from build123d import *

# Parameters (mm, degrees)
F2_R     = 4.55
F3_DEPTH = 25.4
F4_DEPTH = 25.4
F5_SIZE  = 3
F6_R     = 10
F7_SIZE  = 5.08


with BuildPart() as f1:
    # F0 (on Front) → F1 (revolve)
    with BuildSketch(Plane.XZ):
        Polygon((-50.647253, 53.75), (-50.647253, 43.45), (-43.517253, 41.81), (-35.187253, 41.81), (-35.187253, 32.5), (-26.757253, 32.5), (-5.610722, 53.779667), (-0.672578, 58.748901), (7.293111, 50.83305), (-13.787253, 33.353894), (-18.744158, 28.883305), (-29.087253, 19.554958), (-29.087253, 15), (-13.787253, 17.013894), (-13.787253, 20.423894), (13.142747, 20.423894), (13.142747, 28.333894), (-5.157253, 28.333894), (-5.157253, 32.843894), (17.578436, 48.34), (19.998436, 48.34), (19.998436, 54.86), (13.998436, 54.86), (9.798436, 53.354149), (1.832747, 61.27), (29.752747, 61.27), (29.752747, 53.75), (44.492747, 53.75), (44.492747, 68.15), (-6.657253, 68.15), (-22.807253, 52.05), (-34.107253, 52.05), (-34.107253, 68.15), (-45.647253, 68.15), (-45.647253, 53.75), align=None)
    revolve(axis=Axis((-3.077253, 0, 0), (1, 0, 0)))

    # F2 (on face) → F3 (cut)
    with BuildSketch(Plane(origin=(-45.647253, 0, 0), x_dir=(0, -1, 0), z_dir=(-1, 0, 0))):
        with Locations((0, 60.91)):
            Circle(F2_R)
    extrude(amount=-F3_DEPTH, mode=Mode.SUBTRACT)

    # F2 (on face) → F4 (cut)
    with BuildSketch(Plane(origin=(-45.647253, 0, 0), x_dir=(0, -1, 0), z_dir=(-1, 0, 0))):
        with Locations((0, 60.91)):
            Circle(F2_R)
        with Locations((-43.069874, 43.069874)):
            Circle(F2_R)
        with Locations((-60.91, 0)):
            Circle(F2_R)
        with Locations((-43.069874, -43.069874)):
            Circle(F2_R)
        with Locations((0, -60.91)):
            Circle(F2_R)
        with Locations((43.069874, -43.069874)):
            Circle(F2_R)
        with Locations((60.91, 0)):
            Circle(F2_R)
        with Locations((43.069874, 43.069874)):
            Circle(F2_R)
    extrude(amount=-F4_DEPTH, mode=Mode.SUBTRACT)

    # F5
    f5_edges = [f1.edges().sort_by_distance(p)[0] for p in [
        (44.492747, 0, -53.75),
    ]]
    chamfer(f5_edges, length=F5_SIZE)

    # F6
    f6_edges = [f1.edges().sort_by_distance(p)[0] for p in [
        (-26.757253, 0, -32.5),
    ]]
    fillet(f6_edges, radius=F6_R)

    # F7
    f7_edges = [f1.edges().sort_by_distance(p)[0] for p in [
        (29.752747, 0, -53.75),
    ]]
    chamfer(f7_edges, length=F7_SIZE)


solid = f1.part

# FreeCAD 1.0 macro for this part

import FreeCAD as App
import Part
import Sketcher
Q = App.Units.Quantity


def edges_at(feature, points):
    """Names of the edges that pass closest to the given points."""
    edges = feature.Shape.Edges
    near = lambda p: min(range(len(edges)), key=lambda i: edges[i].distToShape(Part.Vertex(*p))[0])
    return sorted({f"Edge{near(p) + 1}" for p in points})

doc = App.newDocument("Part")
params = doc.addObject("Spreadsheet::Sheet", "Params")
for row, (alias, value) in enumerate([
    ("sketch1_width", "6 mm"),
    ("sketch1_width2", "5 mm"),
    ("sketch1_length", "30 mm"),
    ("sketch1_width3", "18.3 mm"),
    ("sketch1_width4", "11.3 mm"),
    ("revolution_angle", "360 deg"),
    ("sketch2_diameter", "9.1 mm"),
    ("pocket1_length", "25.4 mm"),
    ("sketch3_diameter", "9.1 mm"),
    ("pocket2_length", "25.4 mm"),
    ("chamfer_size", "3 mm"),
    ("fillet_radius", "10 mm"),
    ("chamfer2_size", "5.08 mm"),
], start=1):
    params.set(f"A{row}", alias)
    params.set(f"B{row}", "=" + value)
    params.setAlias(f"B{row}", alias)

body = doc.addObject("PartDesign::Body", "Body")

sketch1 = body.newObject("Sketcher::SketchObject", "Sketch")
sketch1.AttachmentSupport = (doc.getObject("XZ_Plane"), [""])
sketch1.MapMode = "FlatFace"
sketch1.addGeometry(Part.LineSegment(App.Vector(-50.647253, 53.75, 0), App.Vector(-50.647253, 43.45, 0)), False)
sketch1.addGeometry(Part.LineSegment(App.Vector(-50.647253, 43.45, 0), App.Vector(-43.517253, 41.81, 0)), False)
sketch1.addGeometry(Part.LineSegment(App.Vector(-43.517253, 41.81, 0), App.Vector(-35.187253, 41.81, 0)), False)
sketch1.addGeometry(Part.LineSegment(App.Vector(-35.187253, 41.81, 0), App.Vector(-35.187253, 32.5, 0)), False)
sketch1.addGeometry(Part.LineSegment(App.Vector(-35.187253, 32.5, 0), App.Vector(-26.757253, 32.5, 0)), False)
sketch1.addGeometry(Part.LineSegment(App.Vector(-26.757253, 32.5, 0), App.Vector(-5.610722, 53.779667, 0)), False)
sketch1.addGeometry(Part.LineSegment(App.Vector(-5.610722, 53.779667, 0), App.Vector(-0.672578, 58.748901, 0)), False)
sketch1.addGeometry(Part.LineSegment(App.Vector(-0.672578, 58.748901, 0), App.Vector(7.293111, 50.83305, 0)), False)
sketch1.addGeometry(Part.LineSegment(App.Vector(7.293111, 50.83305, 0), App.Vector(-13.787253, 33.353894, 0)), False)
sketch1.addGeometry(Part.LineSegment(App.Vector(-13.787253, 33.353894, 0), App.Vector(-18.744158, 28.883305, 0)), False)
sketch1.addGeometry(Part.LineSegment(App.Vector(-18.744158, 28.883305, 0), App.Vector(-29.087253, 19.554958, 0)), False)
sketch1.addGeometry(Part.LineSegment(App.Vector(-29.087253, 19.554958, 0), App.Vector(-29.087253, 15, 0)), False)
sketch1.addGeometry(Part.LineSegment(App.Vector(-29.087253, 15, 0), App.Vector(-13.787253, 17.013894, 0)), False)
sketch1.addGeometry(Part.LineSegment(App.Vector(-13.787253, 17.013894, 0), App.Vector(-13.787253, 20.423894, 0)), False)
sketch1.addGeometry(Part.LineSegment(App.Vector(-13.787253, 20.423894, 0), App.Vector(13.142747, 20.423894, 0)), False)
sketch1.addGeometry(Part.LineSegment(App.Vector(13.142747, 20.423894, 0), App.Vector(13.142747, 28.333894, 0)), False)
sketch1.addGeometry(Part.LineSegment(App.Vector(13.142747, 28.333894, 0), App.Vector(-5.157253, 28.333894, 0)), False)
sketch1.addGeometry(Part.LineSegment(App.Vector(-5.157253, 28.333894, 0), App.Vector(-5.157253, 32.843894, 0)), False)
sketch1.addGeometry(Part.LineSegment(App.Vector(-5.157253, 32.843894, 0), App.Vector(17.578436, 48.34, 0)), False)
sketch1.addGeometry(Part.LineSegment(App.Vector(17.578436, 48.34, 0), App.Vector(19.998436, 48.34, 0)), False)
sketch1.addGeometry(Part.LineSegment(App.Vector(19.998436, 48.34, 0), App.Vector(19.998436, 54.86, 0)), False)
sketch1.addGeometry(Part.LineSegment(App.Vector(19.998436, 54.86, 0), App.Vector(13.998436, 54.86, 0)), False)
sketch1.addGeometry(Part.LineSegment(App.Vector(13.998436, 54.86, 0), App.Vector(9.798436, 53.354149, 0)), False)
sketch1.addGeometry(Part.LineSegment(App.Vector(9.798436, 53.354149, 0), App.Vector(1.832747, 61.27, 0)), False)
sketch1.addGeometry(Part.LineSegment(App.Vector(1.832747, 61.27, 0), App.Vector(29.752747, 61.27, 0)), False)
sketch1.addGeometry(Part.LineSegment(App.Vector(29.752747, 61.27, 0), App.Vector(29.752747, 53.75, 0)), False)
sketch1.addGeometry(Part.LineSegment(App.Vector(29.752747, 53.75, 0), App.Vector(44.492747, 53.75, 0)), False)
sketch1.addGeometry(Part.LineSegment(App.Vector(44.492747, 53.75, 0), App.Vector(44.492747, 68.15, 0)), False)
sketch1.addGeometry(Part.LineSegment(App.Vector(44.492747, 68.15, 0), App.Vector(-6.657253, 68.15, 0)), False)
sketch1.addGeometry(Part.LineSegment(App.Vector(-6.657253, 68.15, 0), App.Vector(-22.807253, 52.05, 0)), False)
sketch1.addGeometry(Part.LineSegment(App.Vector(-22.807253, 52.05, 0), App.Vector(-34.107253, 52.05, 0)), False)
sketch1.addGeometry(Part.LineSegment(App.Vector(-34.107253, 52.05, 0), App.Vector(-34.107253, 68.15, 0)), False)
sketch1.addGeometry(Part.LineSegment(App.Vector(-34.107253, 68.15, 0), App.Vector(-45.647253, 68.15, 0)), False)
sketch1.addGeometry(Part.LineSegment(App.Vector(-45.647253, 68.15, 0), App.Vector(-45.647253, 53.75, 0)), False)
sketch1.addGeometry(Part.LineSegment(App.Vector(-45.647253, 53.75, 0), App.Vector(-50.647253, 53.75, 0)), False)
sketch1.addConstraint(Sketcher.Constraint("Coincident", 0, 2, 1, 1))
sketch1.addConstraint(Sketcher.Constraint("Coincident", 1, 2, 2, 1))
sketch1.addConstraint(Sketcher.Constraint("Coincident", 2, 2, 3, 1))
sketch1.addConstraint(Sketcher.Constraint("Coincident", 3, 2, 4, 1))
sketch1.addConstraint(Sketcher.Constraint("Coincident", 4, 2, 5, 1))
sketch1.addConstraint(Sketcher.Constraint("Coincident", 5, 2, 6, 1))
sketch1.addConstraint(Sketcher.Constraint("Coincident", 6, 2, 7, 1))
sketch1.addConstraint(Sketcher.Constraint("Coincident", 7, 2, 8, 1))
sketch1.addConstraint(Sketcher.Constraint("Coincident", 8, 2, 9, 1))
sketch1.addConstraint(Sketcher.Constraint("Coincident", 9, 2, 10, 1))
sketch1.addConstraint(Sketcher.Constraint("Coincident", 10, 2, 11, 1))
sketch1.addConstraint(Sketcher.Constraint("Coincident", 11, 2, 12, 1))
sketch1.addConstraint(Sketcher.Constraint("Coincident", 12, 2, 13, 1))
sketch1.addConstraint(Sketcher.Constraint("Coincident", 13, 2, 14, 1))
sketch1.addConstraint(Sketcher.Constraint("Coincident", 14, 2, 15, 1))
sketch1.addConstraint(Sketcher.Constraint("Coincident", 15, 2, 16, 1))
sketch1.addConstraint(Sketcher.Constraint("Coincident", 16, 2, 17, 1))
sketch1.addConstraint(Sketcher.Constraint("Coincident", 17, 2, 18, 1))
sketch1.addConstraint(Sketcher.Constraint("Coincident", 18, 2, 19, 1))
sketch1.addConstraint(Sketcher.Constraint("Coincident", 19, 2, 20, 1))
sketch1.addConstraint(Sketcher.Constraint("Coincident", 20, 2, 21, 1))
sketch1.addConstraint(Sketcher.Constraint("Coincident", 21, 2, 22, 1))
sketch1.addConstraint(Sketcher.Constraint("Coincident", 22, 2, 23, 1))
sketch1.addConstraint(Sketcher.Constraint("Coincident", 23, 2, 24, 1))
sketch1.addConstraint(Sketcher.Constraint("Coincident", 24, 2, 25, 1))
sketch1.addConstraint(Sketcher.Constraint("Coincident", 25, 2, 26, 1))
sketch1.addConstraint(Sketcher.Constraint("Coincident", 26, 2, 27, 1))
sketch1.addConstraint(Sketcher.Constraint("Coincident", 27, 2, 28, 1))
sketch1.addConstraint(Sketcher.Constraint("Coincident", 28, 2, 29, 1))
sketch1.addConstraint(Sketcher.Constraint("Coincident", 29, 2, 30, 1))
sketch1.addConstraint(Sketcher.Constraint("Coincident", 30, 2, 31, 1))
sketch1.addConstraint(Sketcher.Constraint("Coincident", 31, 2, 32, 1))
sketch1.addConstraint(Sketcher.Constraint("Coincident", 32, 2, 33, 1))
sketch1.addConstraint(Sketcher.Constraint("Coincident", 33, 2, 34, 1))
sketch1.addConstraint(Sketcher.Constraint("Coincident", 34, 2, 0, 1))
sketch1.addConstraint(Sketcher.Constraint("Vertical", 0))
sketch1.addConstraint(Sketcher.Constraint("Horizontal", 2))
sketch1.addConstraint(Sketcher.Constraint("Vertical", 3))
sketch1.addConstraint(Sketcher.Constraint("Horizontal", 4))
sketch1.addConstraint(Sketcher.Constraint("Vertical", 11))
sketch1.addConstraint(Sketcher.Constraint("Vertical", 13))
sketch1.addConstraint(Sketcher.Constraint("Horizontal", 14))
sketch1.addConstraint(Sketcher.Constraint("Vertical", 15))
sketch1.addConstraint(Sketcher.Constraint("Horizontal", 16))
sketch1.addConstraint(Sketcher.Constraint("Vertical", 17))
sketch1.addConstraint(Sketcher.Constraint("Horizontal", 19))
sketch1.addConstraint(Sketcher.Constraint("Vertical", 20))
sketch1.addConstraint(Sketcher.Constraint("Horizontal", 21))
sketch1.addConstraint(Sketcher.Constraint("Horizontal", 24))
sketch1.addConstraint(Sketcher.Constraint("Vertical", 25))
sketch1.addConstraint(Sketcher.Constraint("Horizontal", 26))
sketch1.addConstraint(Sketcher.Constraint("Vertical", 27))
sketch1.addConstraint(Sketcher.Constraint("Horizontal", 28))
sketch1.addConstraint(Sketcher.Constraint("Horizontal", 30))
sketch1.addConstraint(Sketcher.Constraint("Vertical", 31))
sketch1.addConstraint(Sketcher.Constraint("Horizontal", 32))
sketch1.addConstraint(Sketcher.Constraint("Vertical", 33))
sketch1.addConstraint(Sketcher.Constraint("Horizontal", 34))
sketch1.addConstraint(Sketcher.Constraint("Parallel", 5, 6))
sketch1.addConstraint(Sketcher.Constraint("Perpendicular", 6, 7))
sketch1.addConstraint(Sketcher.Constraint("Parallel", 9, 10))
sketch1.addConstraint(Sketcher.Constraint("Parallel", 7, 23))
sketch1.addConstraint(Sketcher.Constraint("Horizontal", 28, 2, 31, 2))
sketch1.addConstraint(Sketcher.Constraint("Horizontal", 26, 2, 33, 2))
sketch1.addConstraint(Sketcher.Constraint("Vertical", 8, 2, 12, 2))
sketch1.addConstraint(Sketcher.Constraint("Equal", 7, 23))
sketch1.addConstraint(Sketcher.Constraint("DistanceX", 21, 2, 21, 1, Q("6 mm")))
sketch1.addConstraint(Sketcher.Constraint("DistanceX", 34, 2, 34, 1, Q("5 mm")))
sketch1.addConstraint(Sketcher.Constraint("Distance", 5, Q("30 mm")))
sketch1.addConstraint(Sketcher.Constraint("DistanceX", 16, 2, 16, 1, Q("18.3 mm")))
sketch1.addConstraint(Sketcher.Constraint("DistanceX", 30, 2, 30, 1, Q("11.3 mm")))
sketch1.addConstraint(Sketcher.Constraint("DistanceY", 0, 2, 0, 1, Q("10.3 mm")))
sketch1.addConstraint(Sketcher.Constraint("DistanceY", 27, 1, 27, 2, Q("14.4 mm")))
sketch1.addConstraint(Sketcher.Constraint("DistanceY", 31, 1, 31, 2, Q("16.1 mm")))
sketch1.addConstraint(Sketcher.Constraint("DistanceY", -1, 1, 11, 2, Q("15 mm")))
sketch1.addConstraint(Sketcher.Constraint("DistanceX", 2, 1, 2, 2, Q("8.33 mm")))
sketch1.addConstraint(Sketcher.Constraint("DistanceX", 4, 1, 4, 2, Q("8.43 mm")))
sketch1.addConstraint(Sketcher.Constraint("DistanceX", 14, 1, 14, 2, Q("26.93 mm")))
sketch1.addConstraint(Sketcher.Constraint("DistanceX", 19, 1, 19, 2, Q("2.42 mm")))
sketch1.addConstraint(Sketcher.Constraint("DistanceX", 24, 1, 24, 2, Q("27.92 mm")))
sketch1.addConstraint(Sketcher.Constraint("DistanceX", 26, 1, 26, 2, Q("14.74 mm")))
sketch1.addConstraint(Sketcher.Constraint("DistanceX", 28, 2, 28, 1, Q("51.15 mm")))
sketch1.addConstraint(Sketcher.Constraint("DistanceX", 32, 2, 32, 1, Q("11.54 mm")))
sketch1.addConstraint(Sketcher.Constraint("DistanceY", 3, 2, 3, 1, Q("9.31 mm")))
sketch1.addConstraint(Sketcher.Constraint("DistanceY", 13, 1, 13, 2, Q("3.41 mm")))
sketch1.addConstraint(Sketcher.Constraint("DistanceY", 15, 1, 15, 2, Q("7.91 mm")))
sketch1.addConstraint(Sketcher.Constraint("DistanceY", 17, 1, 17, 2, Q("4.51 mm")))
sketch1.addConstraint(Sketcher.Constraint("DistanceY", 20, 1, 20, 2, Q("6.52 mm")))
sketch1.addConstraint(Sketcher.Constraint("DistanceY", 25, 2, 25, 1, Q("7.52 mm")))
sketch1.addConstraint(Sketcher.Constraint("DistanceY", -1, 1, 3, 2, Q("32.5 mm")))
sketch1.addConstraint(Sketcher.Constraint("DistanceX", 3, 2, 8, 2, Q("21.4 mm")))
sketch1.addConstraint(Sketcher.Constraint("DistanceX", 3, 2, 10, 2, Q("6.1 mm")))
sketch1.addConstraint(Sketcher.Constraint("DistanceX", 22, 2, 21, 2, Q("4.2 mm")))
sketch1.addConstraint(Sketcher.Constraint("Distance", 7, Q("11.23 mm")))
sketch1.addConstraint(Sketcher.Constraint("DistanceY", -1, 1, 0, 2, Q("43.45 mm")))
sketch1.addConstraint(Sketcher.Constraint("DistanceY", -1, 1, 18, 2, Q("48.34 mm")))
sketch1.addConstraint(Sketcher.Constraint("DistanceX", 0, 2, 1, 2, Q("7.13 mm")))
sketch1.addConstraint(Sketcher.Constraint("DistanceY", 12, 2, 8, 2, Q("16.34 mm")))
sketch1.addConstraint(Sketcher.Constraint("DistanceX", 29, 2, 28, 2, Q("16.15 mm")))
sketch1.addConstraint(Sketcher.Constraint("DistanceY", -1, 1, 6, 2, Q("58.748901 mm")))
sketch1.addConstraint(Sketcher.Constraint("Distance", 6, Q("7.005609 mm")))
sketch1.addConstraint(Sketcher.Constraint("Distance", 8, Q("27.38435 mm")))
sketch1.addConstraint(Sketcher.Constraint("Distance", 9, Q("6.675108 mm")))
sketch1.addConstraint(Sketcher.Constraint("DistanceY", 11, 2, 11, 1, Q("4.554958 mm")))
sketch1.addConstraint(Sketcher.Constraint("DistanceX", 6, 2, -1, 1, Q("0.672578 mm")))
sketch1.setExpression("Constraints[66]", "Params.sketch1_width")
sketch1.setExpression("Constraints[67]", "Params.sketch1_width2")
sketch1.setExpression("Constraints[68]", "Params.sketch1_length")
sketch1.setExpression("Constraints[69]", "Params.sketch1_width3")
sketch1.setExpression("Constraints[70]", "Params.sketch1_width4")
revolution = body.newObject("PartDesign::Revolution", "Revolution")
revolution.Profile = sketch1
revolution.ReferenceAxis = (sketch1, ["H_Axis"])
revolution.setExpression("Angle", "Params.revolution_angle")

sketch2 = body.newObject("Sketcher::SketchObject", "Sketch001")
sketch2.AttachmentSupport = (doc.getObject("YZ_Plane"), [""])
sketch2.MapMode = "FlatFace"
sketch2.AttachmentOffset = App.Placement(App.Vector(0, 0, -45.647253), App.Rotation())
sketch2.addGeometry(Part.Circle(App.Vector(0, 60.91, 0), App.Vector(0, 0, 1), 4.55), False)
sketch2.addConstraint(Sketcher.Constraint("PointOnObject", 0, 3, -2))
sketch2.addConstraint(Sketcher.Constraint("Diameter", 0, Q("9.1 mm")))
sketch2.addConstraint(Sketcher.Constraint("DistanceY", -1, 1, 0, 3, Q("60.91 mm")))
sketch2.setExpression("Constraints[1]", "Params.sketch2_diameter")
pocket1 = body.newObject("PartDesign::Pocket", "Pocket")
pocket1.Profile = sketch2
pocket1.setExpression("Length", "Params.pocket1_length")
pocket1.Reversed = True

sketch3 = body.newObject("Sketcher::SketchObject", "Sketch002")
sketch3.AttachmentSupport = (doc.getObject("YZ_Plane"), [""])
sketch3.MapMode = "FlatFace"
sketch3.AttachmentOffset = App.Placement(App.Vector(0, 0, -45.647253), App.Rotation())
sketch3.addGeometry(Part.Circle(App.Vector(0, 60.91, 0), App.Vector(0, 0, 1), 4.55), False)
sketch3.addGeometry(Part.Circle(App.Vector(43.069874, 43.069874, 0), App.Vector(0, 0, 1), 4.55), False)
sketch3.addGeometry(Part.Circle(App.Vector(60.91, 0, 0), App.Vector(0, 0, 1), 4.55), False)
sketch3.addGeometry(Part.Circle(App.Vector(43.069874, -43.069874, 0), App.Vector(0, 0, 1), 4.55), False)
sketch3.addGeometry(Part.Circle(App.Vector(0, -60.91, 0), App.Vector(0, 0, 1), 4.55), False)
sketch3.addGeometry(Part.Circle(App.Vector(-43.069874, -43.069874, 0), App.Vector(0, 0, 1), 4.55), False)
sketch3.addGeometry(Part.Circle(App.Vector(-60.91, 0, 0), App.Vector(0, 0, 1), 4.55), False)
sketch3.addGeometry(Part.Circle(App.Vector(-43.069874, 43.069874, 0), App.Vector(0, 0, 1), 4.55), False)
sketch3.addConstraint(Sketcher.Constraint("Equal", 0, 1))
sketch3.addConstraint(Sketcher.Constraint("Equal", 1, 2))
sketch3.addConstraint(Sketcher.Constraint("Equal", 2, 3))
sketch3.addConstraint(Sketcher.Constraint("Equal", 3, 4))
sketch3.addConstraint(Sketcher.Constraint("Equal", 4, 5))
sketch3.addConstraint(Sketcher.Constraint("Equal", 5, 6))
sketch3.addConstraint(Sketcher.Constraint("Equal", 6, 7))
sketch3.addConstraint(Sketcher.Constraint("Symmetric", 0, 3, 4, 3, -1, 1))
sketch3.addConstraint(Sketcher.Constraint("Symmetric", 1, 3, 5, 3, -1, 1))
sketch3.addConstraint(Sketcher.Constraint("Symmetric", 2, 3, 6, 3, -1, 1))
sketch3.addConstraint(Sketcher.Constraint("Symmetric", 3, 3, 7, 3, -1, 1))
sketch3.addConstraint(Sketcher.Constraint("Symmetric", 3, 3, 5, 3, -2))
sketch3.addConstraint(Sketcher.Constraint("PointOnObject", 0, 3, -2))
sketch3.addConstraint(Sketcher.Constraint("PointOnObject", 2, 3, -1))
sketch3.addConstraint(Sketcher.Constraint("Diameter", 0, Q("9.1 mm")))
sketch3.addConstraint(Sketcher.Constraint("DistanceY", -1, 1, 0, 3, Q("60.91 mm")))
sketch3.addConstraint(Sketcher.Constraint("DistanceX", -1, 1, 2, 3, Q("60.91 mm")))
sketch3.addConstraint(Sketcher.Constraint("DistanceX", -1, 1, 1, 3, Q("43.069874 mm")))
sketch3.addConstraint(Sketcher.Constraint("DistanceY", -1, 1, 1, 3, Q("43.069874 mm")))
sketch3.setExpression("Constraints[14]", "Params.sketch3_diameter")
pocket2 = body.newObject("PartDesign::Pocket", "Pocket001")
pocket2.Profile = sketch3
pocket2.setExpression("Length", "Params.pocket2_length")
pocket2.Reversed = True
doc.recompute()

chamfer = body.newObject("PartDesign::Chamfer", "Chamfer")
chamfer.Base = (pocket2, edges_at(pocket2, [(44.493, 0, -53.75)]))
chamfer.setExpression("Size", "Params.chamfer_size")
doc.recompute()

fillet = body.newObject("PartDesign::Fillet", "Fillet")
fillet.Base = (chamfer, edges_at(chamfer, [(-26.757, 0, -32.5)]))
fillet.setExpression("Radius", "Params.fillet_radius")
doc.recompute()

chamfer2 = body.newObject("PartDesign::Chamfer", "Chamfer001")
chamfer2.Base = (fillet, edges_at(fillet, [(29.753, 0, -53.75)]))
chamfer2.setExpression("Size", "Params.chamfer2_size")

doc.recompute()
